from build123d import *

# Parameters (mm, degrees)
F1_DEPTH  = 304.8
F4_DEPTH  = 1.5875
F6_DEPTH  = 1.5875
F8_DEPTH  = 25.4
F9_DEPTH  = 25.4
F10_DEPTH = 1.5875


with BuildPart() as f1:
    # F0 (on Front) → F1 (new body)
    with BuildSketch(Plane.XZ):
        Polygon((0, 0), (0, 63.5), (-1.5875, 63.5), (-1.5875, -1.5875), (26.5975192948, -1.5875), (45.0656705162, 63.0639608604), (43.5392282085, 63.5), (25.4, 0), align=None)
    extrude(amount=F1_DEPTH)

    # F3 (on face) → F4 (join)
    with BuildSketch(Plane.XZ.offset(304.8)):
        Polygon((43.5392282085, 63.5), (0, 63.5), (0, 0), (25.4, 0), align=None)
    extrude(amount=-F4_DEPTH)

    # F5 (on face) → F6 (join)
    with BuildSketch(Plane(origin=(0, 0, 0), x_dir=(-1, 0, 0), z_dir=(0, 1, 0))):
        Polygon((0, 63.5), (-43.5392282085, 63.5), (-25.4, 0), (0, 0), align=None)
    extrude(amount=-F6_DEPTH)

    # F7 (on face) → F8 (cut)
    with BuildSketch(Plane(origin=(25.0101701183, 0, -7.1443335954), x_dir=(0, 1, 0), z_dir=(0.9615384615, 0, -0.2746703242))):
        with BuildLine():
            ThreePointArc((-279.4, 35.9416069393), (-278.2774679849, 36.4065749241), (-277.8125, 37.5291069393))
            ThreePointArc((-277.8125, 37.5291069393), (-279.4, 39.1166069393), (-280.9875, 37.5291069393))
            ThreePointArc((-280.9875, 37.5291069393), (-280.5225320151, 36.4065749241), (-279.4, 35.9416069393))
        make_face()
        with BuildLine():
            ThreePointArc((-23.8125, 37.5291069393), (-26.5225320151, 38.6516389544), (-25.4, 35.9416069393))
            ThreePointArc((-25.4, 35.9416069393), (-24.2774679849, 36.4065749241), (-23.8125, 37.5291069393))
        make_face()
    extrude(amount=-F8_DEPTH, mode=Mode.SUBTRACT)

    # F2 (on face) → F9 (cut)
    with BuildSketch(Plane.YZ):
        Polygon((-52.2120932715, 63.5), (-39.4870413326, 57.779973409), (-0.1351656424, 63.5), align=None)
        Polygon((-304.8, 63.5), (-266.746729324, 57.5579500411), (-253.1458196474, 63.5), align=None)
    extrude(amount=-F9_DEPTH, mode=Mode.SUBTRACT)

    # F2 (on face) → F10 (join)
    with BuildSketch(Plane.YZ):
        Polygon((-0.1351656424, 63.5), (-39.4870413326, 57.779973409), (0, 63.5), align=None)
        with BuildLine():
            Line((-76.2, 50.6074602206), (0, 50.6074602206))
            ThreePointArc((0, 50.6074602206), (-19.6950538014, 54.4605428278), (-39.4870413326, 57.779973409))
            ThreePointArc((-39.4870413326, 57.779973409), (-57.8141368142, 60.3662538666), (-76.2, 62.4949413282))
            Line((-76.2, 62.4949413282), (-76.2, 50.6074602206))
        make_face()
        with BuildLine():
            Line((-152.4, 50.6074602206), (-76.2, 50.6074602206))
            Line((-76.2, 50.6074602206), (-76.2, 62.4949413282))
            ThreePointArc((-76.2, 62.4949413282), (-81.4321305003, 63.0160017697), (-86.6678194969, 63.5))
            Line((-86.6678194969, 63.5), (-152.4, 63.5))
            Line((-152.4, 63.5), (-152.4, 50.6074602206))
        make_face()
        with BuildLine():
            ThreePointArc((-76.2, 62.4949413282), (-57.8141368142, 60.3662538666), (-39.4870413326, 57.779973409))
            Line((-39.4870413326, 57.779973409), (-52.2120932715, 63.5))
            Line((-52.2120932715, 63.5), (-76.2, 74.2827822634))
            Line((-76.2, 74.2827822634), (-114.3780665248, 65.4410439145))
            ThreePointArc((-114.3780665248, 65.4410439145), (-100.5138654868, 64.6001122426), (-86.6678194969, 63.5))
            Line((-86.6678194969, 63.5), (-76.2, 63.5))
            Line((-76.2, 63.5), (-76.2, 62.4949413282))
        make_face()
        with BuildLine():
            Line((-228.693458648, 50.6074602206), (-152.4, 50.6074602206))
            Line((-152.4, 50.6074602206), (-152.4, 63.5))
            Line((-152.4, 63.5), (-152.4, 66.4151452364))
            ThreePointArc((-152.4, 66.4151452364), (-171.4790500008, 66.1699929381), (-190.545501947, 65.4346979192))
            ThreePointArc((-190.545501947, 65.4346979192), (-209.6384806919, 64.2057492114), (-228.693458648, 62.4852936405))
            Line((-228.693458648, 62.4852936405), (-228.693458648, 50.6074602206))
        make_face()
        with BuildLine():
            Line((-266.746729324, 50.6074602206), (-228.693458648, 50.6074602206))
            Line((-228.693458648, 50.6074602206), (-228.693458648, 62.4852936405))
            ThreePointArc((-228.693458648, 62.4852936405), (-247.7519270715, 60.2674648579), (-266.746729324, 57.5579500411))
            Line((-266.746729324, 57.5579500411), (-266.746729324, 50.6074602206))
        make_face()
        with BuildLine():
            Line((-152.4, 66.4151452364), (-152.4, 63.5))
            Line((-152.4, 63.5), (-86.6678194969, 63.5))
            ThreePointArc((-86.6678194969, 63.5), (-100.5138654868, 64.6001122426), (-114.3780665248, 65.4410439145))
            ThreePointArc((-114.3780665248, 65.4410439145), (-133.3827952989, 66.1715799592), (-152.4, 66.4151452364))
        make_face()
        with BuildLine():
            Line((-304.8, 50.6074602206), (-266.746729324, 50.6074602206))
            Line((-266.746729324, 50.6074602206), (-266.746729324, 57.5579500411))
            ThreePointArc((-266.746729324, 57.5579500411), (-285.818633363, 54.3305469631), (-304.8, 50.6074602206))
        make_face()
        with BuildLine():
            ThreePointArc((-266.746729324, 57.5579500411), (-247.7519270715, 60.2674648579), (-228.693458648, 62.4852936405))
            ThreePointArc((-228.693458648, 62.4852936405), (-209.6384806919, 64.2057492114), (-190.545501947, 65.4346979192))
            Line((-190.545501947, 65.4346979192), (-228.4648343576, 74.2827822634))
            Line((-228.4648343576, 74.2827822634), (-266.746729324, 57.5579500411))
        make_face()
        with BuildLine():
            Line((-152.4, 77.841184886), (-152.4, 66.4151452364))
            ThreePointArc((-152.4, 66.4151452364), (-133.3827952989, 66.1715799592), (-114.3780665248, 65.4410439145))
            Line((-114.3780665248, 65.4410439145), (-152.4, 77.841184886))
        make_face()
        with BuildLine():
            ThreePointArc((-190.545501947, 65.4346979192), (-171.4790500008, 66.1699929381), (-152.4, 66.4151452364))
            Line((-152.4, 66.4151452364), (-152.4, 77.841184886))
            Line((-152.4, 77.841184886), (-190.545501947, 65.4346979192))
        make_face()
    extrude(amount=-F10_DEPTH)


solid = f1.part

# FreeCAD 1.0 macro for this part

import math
import FreeCAD as App
import Part
import Sketcher

V = App.Vector
Q = App.Units.Quantity


def add_polygon(sketch, points):
    """Adds a closed chain of lines whose ends are joined by coincident constraints."""
    first, n = sketch.GeometryCount, len(points)
    for a, b in zip(points, points[1:] + points[:1]):
        sketch.addGeometry(Part.LineSegment(App.Vector(*a, 0), App.Vector(*b, 0)), False)
    for i in range(n):
        sketch.addConstraint(Sketcher.Constraint("Coincident", first + i, 2, first + (i + 1) % n, 1))

doc = App.newDocument("Part")
body = doc.addObject("PartDesign::Body", "Body")

# Sketch on XZ plane
sketch1 = doc.addObject("Sketcher::SketchObject", "Sketch")
body.addObject(sketch1)
sketch1.AttachmentSupport = (doc.XZ_Plane, [""])
sketch1.MapMode = "FlatFace"
add_polygon(sketch1, [(0, 0), (0, 63.5), (-1.6, 63.5), (-1.6, -1.6), (26.6, -1.6), (45.1, 63.1), (43.5, 63.5), (25.4, 0)])  # lines 0-7
sketch1.addConstraint([
    Sketcher.Constraint("Vertical", 0),
    Sketcher.Constraint("Horizontal", 1),
    Sketcher.Constraint("Vertical", 2),
    Sketcher.Constraint("Horizontal", 3),
    Sketcher.Constraint("Horizontal", 7),
    Sketcher.Constraint("Coincident", 7, 2, -1, 1),
    Sketcher.Constraint("Perpendicular", 4, 5),
    Sketcher.Constraint("Perpendicular", 5, 6),
    Sketcher.Constraint("Horizontal", 1, 2, 5, 2),
    Sketcher.Constraint("DistanceX", 7, 2, 7, 1, Q("1 in")),
    Sketcher.Constraint("DistanceY", 0, 1, 0, 2, Q("2.5 in")),
    Sketcher.Constraint("Distance", 6, Q("2.6 in")),
    Sketcher.Constraint("DistanceX", 1, 2, 1, 1, Q("0.0625 in")),
    Sketcher.Constraint("DistanceY", 2, 2, 2, 1, Q("2.5625 in")),
    Sketcher.Constraint("Distance", 5, Q("0.0625 in")),
])
pad1 = doc.addObject("PartDesign::Pad", "Pad")
body.addObject(pad1)
pad1.Profile = sketch1
pad1.Length = Q("12 in")

# Sketch on XZ plane
sketch2 = doc.addObject("Sketcher::SketchObject", "Sketch001")
body.addObject(sketch2)
sketch2.AttachmentSupport = (doc.XZ_Plane, [""])
sketch2.MapMode = "FlatFace"
sketch2.AttachmentOffset = App.Placement(V(0, 0, 12 * 25.4), App.Rotation())
add_polygon(sketch2, [(44, 64), (0, 64), (0, 0), (25, 0)])  # lines 0-3
sketch2.addConstraint([
    Sketcher.Constraint("Horizontal", 0),
    Sketcher.Constraint("Vertical", 1),
    Sketcher.Constraint("Horizontal", 2),
    Sketcher.Constraint("Coincident", 1, 2, -1, 1),
    Sketcher.Constraint("DistanceX", 2, 1, 2, 2, Q("1 in")),
    Sketcher.Constraint("DistanceY", 1, 2, 1, 1, Q("2.5 in")),
    Sketcher.Constraint("Distance", 3, Q("2.6 in")),
])
pad2 = doc.addObject("PartDesign::Pad", "Pad001")
body.addObject(pad2)
pad2.Profile = sketch2
pad2.Length = Q("0.0625 in")
pad2.Reversed = True

# Sketch on XZ plane
sketch3 = doc.addObject("Sketcher::SketchObject", "Sketch002")
body.addObject(sketch3)
sketch3.AttachmentSupport = (doc.XZ_Plane, [""])
sketch3.MapMode = "FlatFace"
add_polygon(sketch3, [(0, 64), (44, 64), (25, 0), (0, 0)])  # lines 0-3
sketch3.addConstraint([
    Sketcher.Constraint("Horizontal", 0),
    Sketcher.Constraint("Horizontal", 2),
    Sketcher.Constraint("Vertical", 3),
    Sketcher.Constraint("Coincident", 2, 2, -1, 1),
    Sketcher.Constraint("DistanceX", 2, 2, 2, 1, Q("1 in")),
    Sketcher.Constraint("DistanceY", 3, 1, 3, 2, Q("2.5 in")),
    Sketcher.Constraint("Distance", 1, Q("2.6 in")),
])
pad3 = doc.addObject("PartDesign::Pad", "Pad002")
body.addObject(pad3)
pad3.Profile = sketch3
pad3.Length = Q("0.0625 in")

# Sketch on an angled plane
sketch4 = doc.addObject("Sketcher::SketchObject", "Sketch003")
body.addObject(sketch4)
sketch4.Placement = App.Placement(V(25.01017, 0, -7.144334), App.Rotation(V(0, 1, 0), V(0.274670324, 0, 0.961538462), V(0.961538462, 0, -0.274670324), "ZXY"))
sketch4.addGeometry([
    Part.ArcOfCircle(Part.Circle(V(-279.4, 37.5, 0), V(0, 0, 1), 1.6), math.radians(-90), math.radians(0)),  # 0
    Part.ArcOfCircle(Part.Circle(V(-279.4, 37.5, 0), V(0, 0, 1), 1.6), math.radians(0), math.radians(180)),  # 1
    Part.ArcOfCircle(Part.Circle(V(-279.4, 37.5, 0), V(0, 0, 1), 1.6), math.radians(180), math.radians(270)),  # 2
    Part.ArcOfCircle(Part.Circle(V(-25.4, 37.5, 0), V(0, 0, 1), 1.6), math.radians(0), math.radians(270)),  # 3
    Part.ArcOfCircle(Part.Circle(V(-25.4, 37.5, 0), V(0, 0, 1), 1.6), math.radians(-90), math.radians(0)),  # 4
], False)
sketch4.addConstraint([
    Sketcher.Constraint("Tangent", 0, 2, 1, 1),
    Sketcher.Constraint("Tangent", 1, 2, 2, 1),
    Sketcher.Constraint("Tangent", 2, 2, 0, 1),
    Sketcher.Constraint("Tangent", 3, 1, 4, 2),
    Sketcher.Constraint("Coincident", 4, 1, 3, 2),
    Sketcher.Constraint("Equal", 2, 3),
    Sketcher.Constraint("Horizontal", 2, 3, 3, 3),
    Sketcher.Constraint("Horizontal", 4, 3, 0, 2),
    Sketcher.Constraint("Horizontal", 0, 2, 1, 2),
    Sketcher.Constraint("Horizontal", 1, 2, 3, 1),
    Sketcher.Constraint("Vertical", 1, 3, 2, 2),
    Sketcher.Constraint("Vertical", 3, 3, 4, 1),
    Sketcher.Constraint("DistanceX", 0, 3, -1, 1, Q("11 in")),
    Sketcher.Constraint("DistanceX", 3, 3, -1, 1, Q("1 in")),
    Sketcher.Constraint("Radius", 0, Q("0.0625 in")),
    Sketcher.Constraint("DistanceY", -1, 1, 0, 3, 37.529107),
])
pocket1 = doc.addObject("PartDesign::Pocket", "Pocket")
body.addObject(pocket1)
pocket1.Profile = sketch4
pocket1.Length = Q("1 in")

# Sketch on YZ plane
sketch5 = doc.addObject("Sketcher::SketchObject", "Sketch004")
body.addObject(sketch5)
sketch5.AttachmentSupport = (doc.YZ_Plane, [""])
sketch5.MapMode = "FlatFace"
add_polygon(sketch5, [(-52, 64), (-39, 58), (0, 64)])  # lines 0-2
add_polygon(sketch5, [(-305, 64), (-267, 58), (-253, 64)])  # lines 3-5
sketch5.addConstraint([
    Sketcher.Constraint("Horizontal", 2),
    Sketcher.Constraint("Horizontal", 5),
    Sketcher.Constraint("Horizontal", 2, 2, 4, 2),
    Sketcher.Constraint("DistanceX", 5, 2, -1, 1, Q("12 in")),
    Sketcher.Constraint("DistanceY", -1, 1, 1, 2, Q("2.5 in")),
    Sketcher.Constraint("DistanceX", 5, 2, 5, 1, 51.65418),
    Sketcher.Constraint("Distance", 4, 14.842261),
    Sketcher.Constraint("DistanceX", 2, 2, 2, 1, 52.076928),
    Sketcher.Constraint("DistanceX", 0, 2, -1, 1, 39.487041),
    Sketcher.Constraint("DistanceX", 3, 2, -1, 1, 266.746729),
    Sketcher.Constraint("DistanceX", 2, 2, 0, 2, 12.725052),
    Sketcher.Constraint("Distance", 0, 13.951547),
])
pocket2 = doc.addObject("PartDesign::Pocket", "Pocket001")
body.addObject(pocket2)
pocket2.Profile = sketch5
pocket2.Length = Q("1 in")

# Sketch on YZ plane
sketch6 = doc.addObject("Sketcher::SketchObject", "Sketch005")
body.addObject(sketch6)
sketch6.AttachmentSupport = (doc.YZ_Plane, [""])
sketch6.MapMode = "FlatFace"
add_polygon(sketch6, [(-0.14, 63.5), (-39.49, 57.78), (0, 63.5)])  # lines 0-2
sketch6.addGeometry(Part.LineSegment(V(-76.2, 74.28, 0), V(-114.38, 65.44, 0)), False)  # 3
sketch6.addGeometry(Part.LineSegment(V(-114.38, 65.44, 0), V(-152.4, 77.84, 0)), False)  # 4
sketch6.addGeometry(Part.LineSegment(V(-152.4, 77.84, 0), V(-190.55, 65.43, 0)), False)  # 5
sketch6.addGeometry(Part.LineSegment(V(-190.55, 65.43, 0), V(-228.46, 74.28, 0)), False)  # 6
sketch6.addGeometry(Part.LineSegment(V(-228.46, 74.28, 0), V(-266.75, 57.56, 0)), False)  # 7
sketch6.addGeometry(Part.ArcOfCircle(Part.Circle(V(-152.4, -676.12, 0), V(0, 0, 1), 742.54), math.radians(98.86), math.radians(101.84)), False)  # 8
sketch6.addGeometry(Part.LineSegment(V(-304.8, 50.61, 0), V(0, 50.61, 0)), False)  # 9
sketch6.addGeometry(Part.ArcOfCircle(Part.Circle(V(-152.4, -676.12, 0), V(0, 0, 1), 742.54), math.radians(78.16), math.radians(81.25)), False)  # 10
sketch6.addGeometry(Part.LineSegment(V(-39.49, 57.78, 0), V(-52.21, 63.5, 0)), False)  # 11
sketch6.addGeometry(Part.LineSegment(V(-52.21, 63.5, 0), V(-76.2, 74.28, 0)), False)  # 12
sketch6.addGeometry(Part.ArcOfCircle(Part.Circle(V(-152.4, -676.12, 0), V(0, 0, 1), 742.54), math.radians(84.11), math.radians(84.92)), False)  # 13
sketch6.addGeometry(Part.LineSegment(V(-86.67, 63.5, 0), V(-76.2, 63.5, 0)), False)  # 14
sketch6.addGeometry(Part.LineSegment(V(-76.2, 63.5, 0), V(-76.2, 62.49, 0)), False)  # 15
sketch6.addConstraint([
    Sketcher.Constraint("Coincident", 3, 2, 4, 1),
    Sketcher.Constraint("Coincident", 4, 2, 5, 1),
    Sketcher.Constraint("Coincident", 5, 2, 6, 1),
    Sketcher.Constraint("Coincident", 6, 2, 7, 1),
    Sketcher.Constraint("Coincident", 7, 2, 8, 1),
    Sketcher.Constraint("Coincident", 8, 2, 9, 1),
    Sketcher.Constraint("Coincident", 9, 2, 10, 1),
    Sketcher.Constraint("Coincident", 10, 2, 11, 1),
    Sketcher.Constraint("Coincident", 11, 2, 12, 1),
    Sketcher.Constraint("Coincident", 12, 2, 3, 1),
    Sketcher.Constraint("Coincident", 13, 2, 14, 1),
    Sketcher.Constraint("Coincident", 14, 2, 15, 1),
    Sketcher.Constraint("Coincident", 15, 2, 13, 1),
    Sketcher.Constraint("Horizontal", 2),
    Sketcher.Constraint("Horizontal", 9),
    Sketcher.Constraint("Horizontal", 14),
    Sketcher.Constraint("Vertical", 15),
    Sketcher.Constraint("Coincident", 10, 3, 8, 3),
    Sketcher.Constraint("Coincident", 13, 3, 8, 3),
    Sketcher.Constraint("Equal", 8, 10),
    Sketcher.Constraint("Equal", 10, 13),
    Sketcher.Constraint("PointOnObject", 1, 2, -2),
    Sketcher.Constraint("PointOnObject", 9, 2, -2),
    Sketcher.Constraint("Parallel", 11, 12),
    Sketcher.Constraint("Horizontal", 2, 2, 11, 2),
    Sketcher.Constraint("Horizontal", 6, 2, 12, 2),
    Sketcher.Constraint("Horizontal", 11, 2, 13, 2),
    Sketcher.Constraint("Vertical", 13, 3, 4, 2),
    Sketcher.Constraint("Vertical", 12, 2, 14, 2),
    Sketcher.Constraint("DistanceX", 9, 1, 9, 2, Q("12 in")),
    Sketcher.Constraint("DistanceX", 12, 2, -1, 1, Q("3 in")),
    Sketcher.Constraint("DistanceY", -1, 1, 1, 2, Q("2.5 in")),
    Sketcher.Constraint("Radius", 8, 742.538926),
    Sketcher.Constraint("DistanceY", 3, 2, 6, 2, Q("0.3480999 in")),
    Sketcher.Constraint("DistanceX", 14, 1, 14, 2, 10.467819),
    Sketcher.Constraint("DistanceX", 5, 2, -1, 1, 190.545502),
    Sketcher.Constraint("DistanceX", 3, 2, 2, 2, 114.242901),
    Sketcher.Constraint("DistanceX", 2, 2, 2, 1, 0.135166),
    Sketcher.Constraint("DistanceX", 0, 2, -1, 1, 39.487041),
    Sketcher.Constraint("DistanceX", 7, 2, -1, 1, 266.746729),
    Sketcher.Constraint("DistanceY", 0, 2, 3, 2, 7.661071),
    Sketcher.Constraint("DistanceY", 3, 2, 4, 2, 12.400141),
    Sketcher.Constraint("DistanceX", 6, 2, 2, 2, 228.329669),
    Sketcher.Constraint("DistanceY", 10, 2, 3, 2, 7.661071),
    Sketcher.Constraint("DistanceX", 11, 2, 0, 2, 12.725052),
    Sketcher.Constraint("Distance", 5, 40.112345),
])
pad4 = doc.addObject("PartDesign::Pad", "Pad003")
body.addObject(pad4)
pad4.Profile = sketch6
pad4.Length = Q("0.0625 in")
pad4.Reversed = True

doc.recompute()
